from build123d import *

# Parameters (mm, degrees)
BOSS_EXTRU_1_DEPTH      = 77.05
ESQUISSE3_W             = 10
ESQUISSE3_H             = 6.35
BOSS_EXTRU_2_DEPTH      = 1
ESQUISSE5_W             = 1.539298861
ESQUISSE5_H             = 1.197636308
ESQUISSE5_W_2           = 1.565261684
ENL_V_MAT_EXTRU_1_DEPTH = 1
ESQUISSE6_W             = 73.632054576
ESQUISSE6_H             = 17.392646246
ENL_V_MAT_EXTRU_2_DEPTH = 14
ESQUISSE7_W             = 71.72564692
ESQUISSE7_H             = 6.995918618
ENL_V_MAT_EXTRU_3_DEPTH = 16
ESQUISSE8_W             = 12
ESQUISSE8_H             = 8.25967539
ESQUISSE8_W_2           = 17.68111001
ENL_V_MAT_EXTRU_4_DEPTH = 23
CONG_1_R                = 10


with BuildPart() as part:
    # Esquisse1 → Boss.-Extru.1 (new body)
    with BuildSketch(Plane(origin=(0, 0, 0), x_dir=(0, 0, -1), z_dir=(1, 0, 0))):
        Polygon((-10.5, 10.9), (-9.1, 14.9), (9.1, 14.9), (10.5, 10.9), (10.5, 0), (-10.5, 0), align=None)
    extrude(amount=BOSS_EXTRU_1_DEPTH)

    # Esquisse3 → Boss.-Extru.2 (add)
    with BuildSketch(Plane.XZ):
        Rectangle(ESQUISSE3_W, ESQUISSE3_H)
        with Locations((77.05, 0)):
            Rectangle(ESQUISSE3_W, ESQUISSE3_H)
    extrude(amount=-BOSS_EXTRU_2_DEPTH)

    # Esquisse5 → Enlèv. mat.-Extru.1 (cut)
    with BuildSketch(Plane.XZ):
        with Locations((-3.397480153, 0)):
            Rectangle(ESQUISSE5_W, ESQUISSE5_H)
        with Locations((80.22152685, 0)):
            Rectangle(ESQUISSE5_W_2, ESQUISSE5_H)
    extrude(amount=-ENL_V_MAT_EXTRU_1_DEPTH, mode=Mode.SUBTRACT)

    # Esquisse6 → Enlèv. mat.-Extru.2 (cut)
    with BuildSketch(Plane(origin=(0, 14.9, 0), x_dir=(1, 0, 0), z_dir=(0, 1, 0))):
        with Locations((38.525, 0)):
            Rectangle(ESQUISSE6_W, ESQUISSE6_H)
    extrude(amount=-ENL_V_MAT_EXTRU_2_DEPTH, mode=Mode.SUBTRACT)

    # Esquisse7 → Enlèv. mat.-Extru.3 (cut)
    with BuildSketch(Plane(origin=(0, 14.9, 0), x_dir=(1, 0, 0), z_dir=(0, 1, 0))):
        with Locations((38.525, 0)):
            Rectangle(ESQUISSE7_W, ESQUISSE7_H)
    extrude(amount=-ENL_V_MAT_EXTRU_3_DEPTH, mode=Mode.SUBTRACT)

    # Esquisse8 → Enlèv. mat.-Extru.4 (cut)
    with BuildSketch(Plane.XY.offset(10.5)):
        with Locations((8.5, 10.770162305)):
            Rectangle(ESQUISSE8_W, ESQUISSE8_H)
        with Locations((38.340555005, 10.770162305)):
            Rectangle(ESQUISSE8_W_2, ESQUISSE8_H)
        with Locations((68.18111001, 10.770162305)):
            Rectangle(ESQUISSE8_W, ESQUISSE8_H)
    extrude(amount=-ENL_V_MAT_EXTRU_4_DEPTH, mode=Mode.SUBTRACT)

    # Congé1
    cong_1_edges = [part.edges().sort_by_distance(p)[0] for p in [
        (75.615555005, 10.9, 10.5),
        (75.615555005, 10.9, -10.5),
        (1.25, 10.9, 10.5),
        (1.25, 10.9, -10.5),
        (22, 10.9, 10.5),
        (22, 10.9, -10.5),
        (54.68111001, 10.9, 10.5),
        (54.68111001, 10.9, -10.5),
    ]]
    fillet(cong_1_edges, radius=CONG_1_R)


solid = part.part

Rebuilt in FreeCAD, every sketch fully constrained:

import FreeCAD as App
import Part
import Sketcher
Q = App.Units.Quantity


def edges_at(feature, points):
    """Names of the edges that pass closest to the given points."""
    edges = feature.Shape.Edges
    near = lambda p: min(range(len(edges)), key=lambda i: edges[i].distToShape(Part.Vertex(*p))[0])
    return sorted({f"Edge{near(p) + 1}" for p in points})


def add_polygon(sketch, points):
    """Adds a closed chain of lines whose ends are joined by coincident constraints."""
    first, n = sketch.GeometryCount, len(points)
    for a, b in zip(points, points[1:] + points[:1]):
        sketch.addGeometry(Part.LineSegment(App.Vector(*a, 0), App.Vector(*b, 0)), False)
    for i in range(n):
        sketch.addConstraint(Sketcher.Constraint("Coincident", first + i, 2, first + (i + 1) % n, 1))

doc = App.newDocument("Part")
params = doc.addObject("Spreadsheet::Sheet", "Params")
for row, (alias, value) in enumerate([
    ("sketch1_height", "21 mm"),
    ("sketch1_width", "10.9 mm"),
    ("sketch1_height2", "18.2 mm"),
    ("pad1_length", "77.05 mm"),
    ("sketch2_width", "10 mm"),
    ("sketch2_height", "6.35 mm"),
    ("pad2_length", "1 mm"),
    ("pocket1_length", "1 mm"),
    ("pocket2_length", "14 mm"),
    ("pocket3_length", "16 mm"),
    ("sketch6_width", "12 mm"),
    ("pocket4_length", "23 mm"),
    ("fillet_radius", "10 mm"),
], start=1):
    params.set(f"A{row}", alias)
    params.set(f"B{row}", "=" + value)
    params.setAlias(f"B{row}", alias)

body = doc.addObject("PartDesign::Body", "Body")

sketch1 = body.newObject("Sketcher::SketchObject", "Sketch")
sketch1.AttachmentSupport = (doc.getObject("YZ_Plane"), [""])
sketch1.MapMode = "FlatFace"
add_polygon(sketch1, [(14.9, 9.1), (10.9, 10.5), (0, 10.5), (0, -10.5), (10.9, -10.5), (14.9, -9.1)])
sketch1.addConstraint([
    Sketcher.Constraint("Horizontal", 1),
    Sketcher.Constraint("Vertical", 2),
    Sketcher.Constraint("Horizontal", 3),
    Sketcher.Constraint("Vertical", 5),
    Sketcher.Constraint("Symmetric", 1, 2, 2, 2, -1, 1),
    Sketcher.Constraint("Vertical", 0, 2, 3, 2),
    Sketcher.Constraint("Equal", 0, 4),
    Sketcher.Constraint("DistanceY", 2, 2, 2, 1, Q("21 mm")),
    Sketcher.Constraint("DistanceX", 1, 2, 1, 1, Q("10.9 mm")),
    Sketcher.Constraint("DistanceY", 5, 1, 5, 2, Q("18.2 mm")),
    Sketcher.Constraint("DistanceX", 3, 2, 4, 2, Q("4 mm")),
])
sketch1.setExpression("Constraints[13]", "Params.sketch1_height")
sketch1.setExpression("Constraints[14]", "Params.sketch1_width")
sketch1.setExpression("Constraints[15]", "Params.sketch1_height2")
pad1 = body.newObject("PartDesign::Pad", "Pad")
pad1.Profile = sketch1
pad1.setExpression("Length", "Params.pad1_length")

sketch2 = body.newObject("Sketcher::SketchObject", "Sketch001")
sketch2.AttachmentSupport = (doc.getObject("XZ_Plane"), [""])
sketch2.MapMode = "FlatFace"
add_polygon(sketch2, [(-5, 3.175), (-5, -3.175), (5, -3.175), (5, 3.175)])
add_polygon(sketch2, [(72.05, 3.175), (72.05, -3.175), (82.05, -3.175), (82.05, 3.175)])
sketch2.addConstraint([
    Sketcher.Constraint("Vertical", 0),
    Sketcher.Constraint("Horizontal", 1),
    Sketcher.Constraint("Vertical", 2),
    Sketcher.Constraint("Horizontal", 3),
    Sketcher.Constraint("Vertical", 4),
    Sketcher.Constraint("Horizontal", 5),
    Sketcher.Constraint("Vertical", 6),
    Sketcher.Constraint("Horizontal", 7),
    Sketcher.Constraint("Symmetric", 0, 2, 2, 2, -1, 1),
    Sketcher.Constraint("Horizontal", 1, 2, 4, 2),
    Sketcher.Constraint("Horizontal", 3, 2, 6, 2),
    Sketcher.Constraint("Equal", 3, 5),
    Sketcher.Constraint("DistanceX", 1, 1, 1, 2, Q("10 mm")),
    Sketcher.Constraint("DistanceY", 0, 2, 0, 1, Q("6.35 mm")),
    Sketcher.Constraint("DistanceX", -1, 1, 4, 2, Q("72.05 mm")),
])
sketch2.setExpression("Constraints[20]", "Params.sketch2_width")
sketch2.setExpression("Constraints[21]", "Params.sketch2_height")
pad2 = body.newObject("PartDesign::Pad", "Pad001")
pad2.Profile = sketch2
pad2.setExpression("Length", "Params.pad2_length")
pad2.Reversed = True

sketch3 = body.newObject("Sketcher::SketchObject", "Sketch002")
sketch3.AttachmentSupport = (doc.getObject("XZ_Plane"), [""])
sketch3.MapMode = "FlatFace"
add_polygon(sketch3, [(-4.16713, 0.598818), (-4.16713, -0.598818), (-2.627831, -0.598818), (-2.627831, 0.598818)])
add_polygon(sketch3, [(79.438896, 0.598818), (79.438896, -0.598818), (81.004158, -0.598818), (81.004158, 0.598818)])
sketch3.addConstraint([
    Sketcher.Constraint("Vertical", 0),
    Sketcher.Constraint("Horizontal", 1),
    Sketcher.Constraint("Vertical", 2),
    Sketcher.Constraint("Horizontal", 3),
    Sketcher.Constraint("Vertical", 4),
    Sketcher.Constraint("Horizontal", 5),
    Sketcher.Constraint("Vertical", 6),
    Sketcher.Constraint("Horizontal", 7),
    Sketcher.Constraint("Horizontal", 1, 2, 4, 2),
    Sketcher.Constraint("Horizontal", 3, 2, 6, 2),
    Sketcher.Constraint("DistanceX", 1, 1, 1, 2, Q("1.539299 mm")),
    Sketcher.Constraint("DistanceX", 5, 1, 5, 2, Q("1.565262 mm")),
    Sketcher.Constraint("DistanceY", 0, 2, 0, 1, Q("1.197636 mm")),
    Sketcher.Constraint("DistanceX", 0, 2, -1, 1, Q("4.16713 mm")),
    Sketcher.Constraint("DistanceY", 0, 2, -1, 1, Q("0.598818 mm")),
    Sketcher.Constraint("DistanceX", 1, 2, 5, 2, Q("83.631988 mm")),
])
pocket1 = body.newObject("PartDesign::Pocket", "Pocket")
pocket1.Profile = sketch3
pocket1.setExpression("Length", "Params.pocket1_length")

sketch4 = body.newObject("Sketcher::SketchObject", "Sketch003")
sketch4.AttachmentSupport = (doc.getObject("XZ_Plane"), [""])
sketch4.MapMode = "FlatFace"
sketch4.AttachmentOffset = App.Placement(App.Vector(0, 0, -14.9), App.Rotation())
add_polygon(sketch4, [(1.708973, -8.696323), (1.708973, 8.696323), (75.341027, 8.696323), (75.341027, -8.696323)])
sketch4.addConstraint([
    Sketcher.Constraint("Vertical", 0),
    Sketcher.Constraint("Horizontal", 1),
    Sketcher.Constraint("Vertical", 2),
    Sketcher.Constraint("Horizontal", 3),
    Sketcher.Constraint("DistanceX", 1, 1, 1, 2, Q("73.632055 mm")),
    Sketcher.Constraint("DistanceY", 0, 1, 0, 2, Q("17.392646 mm")),
    Sketcher.Constraint("DistanceX", -1, 1, 0, 2, Q("1.708973 mm")),
    Sketcher.Constraint("DistanceY", -1, 1, 0, 2, Q("8.696323 mm")),
])
pocket2 = body.newObject("PartDesign::Pocket", "Pocket001")
pocket2.Profile = sketch4
pocket2.setExpression("Length", "Params.pocket2_length")
pocket2.Reversed = True

sketch5 = body.newObject("Sketcher::SketchObject", "Sketch004")
sketch5.AttachmentSupport = (doc.getObject("XZ_Plane"), [""])
sketch5.MapMode = "FlatFace"
sketch5.AttachmentOffset = App.Placement(App.Vector(0, 0, -14.9), App.Rotation())
add_polygon(sketch5, [(2.662177, -3.497959), (2.662177, 3.497959), (74.387823, 3.497959), (74.387823, -3.497959)])
sketch5.addConstraint([
    Sketcher.Constraint("Vertical", 0),
    Sketcher.Constraint("Horizontal", 1),
    Sketcher.Constraint("Vertical", 2),
    Sketcher.Constraint("Horizontal", 3),
    Sketcher.Constraint("DistanceY", 0, 1, 0, 2, Q("6.995919 mm")),
    Sketcher.Constraint("DistanceX", 1, 1, 1, 2, Q("71.725647 mm")),
    Sketcher.Constraint("DistanceY", -1, 1, 0, 2, Q("3.497959 mm")),
    Sketcher.Constraint("DistanceX", -1, 1, 0, 2, Q("2.662177 mm")),
])
pocket3 = body.newObject("PartDesign::Pocket", "Pocket002")
pocket3.Profile = sketch5
pocket3.setExpression("Length", "Params.pocket3_length")
pocket3.Reversed = True

sketch6 = body.newObject("Sketcher::SketchObject", "Sketch005")
sketch6.AttachmentSupport = (doc.getObject("XY_Plane"), [""])
sketch6.MapMode = "FlatFace"
sketch6.AttachmentOffset = App.Placement(App.Vector(0, 0, 10.5), App.Rotation())
add_polygon(sketch6, [(2.5, 14.9), (2.5, 6.640325), (14.5, 6.640325), (14.5, 14.9)])
add_polygon(sketch6, [(29.5, 14.9), (29.5, 6.640325), (47.18111, 6.640325), (47.18111, 14.9)])
add_polygon(sketch6, [(62.18111, 14.9), (62.18111, 6.640325), (74.18111, 6.640325), (74.18111, 14.9)])
sketch6.addConstraint([
    Sketcher.Constraint("Vertical", 0),
    Sketcher.Constraint("Horizontal", 1),
    Sketcher.Constraint("Vertical", 2),
    Sketcher.Constraint("Horizontal", 3),
    Sketcher.Constraint("Vertical", 4),
    Sketcher.Constraint("Horizontal", 5),
    Sketcher.Constraint("Vertical", 6),
    Sketcher.Constraint("Horizontal", 7),
    Sketcher.Constraint("Vertical", 8),
    Sketcher.Constraint("Horizontal", 9),
    Sketcher.Constraint("Vertical", 10),
    Sketcher.Constraint("Horizontal", 11),
    Sketcher.Constraint("Horizontal", 1, 2, 4, 2),
    Sketcher.Constraint("Horizontal", 3, 2, 6, 2),
    Sketcher.Constraint("Horizontal", 5, 2, 8, 2),
    Sketcher.Constraint("Horizontal", 7, 2, 10, 2),
    Sketcher.Constraint("Equal", 3, 9),
    Sketcher.Constraint("DistanceX", 1, 1, 1, 2, Q("12 mm")),
    Sketcher.Constraint("DistanceX", 1, 2, 4, 2, Q("15 mm")),
    Sketcher.Constraint("DistanceX", 5, 2, 8, 2, Q("15 mm")),
    Sketcher.Constraint("DistanceX", -1, 1, 0, 2, Q("2.5 mm")),
    Sketcher.Constraint("DistanceY", -1, 1, 2, 2, Q("14.9 mm")),
    Sketcher.Constraint("DistanceX", 5, 1, 5, 2, Q("17.68111 mm")),
    Sketcher.Constraint("DistanceY", 0, 2, 0, 1, Q("8.259675 mm")),
])
sketch6.setExpression("Constraints[29]", "Params.sketch6_width")
pocket4 = body.newObject("PartDesign::Pocket", "Pocket003")
pocket4.Profile = sketch6
pocket4.setExpression("Length", "Params.pocket4_length")
doc.recompute()

fillet = body.newObject("PartDesign::Fillet", "Fillet")
fillet.Base = (pocket4, edges_at(pocket4, [
    (75.616, 10.9, 10.5),
    (75.616, 10.9, -10.5),
    (1.25, 10.9, 10.5),
    (1.25, 10.9, -10.5),
    (22, 10.9, 10.5),
    (22, 10.9, -10.5),
    (54.681, 10.9, 10.5),
    (54.681, 10.9, -10.5),
]))
fillet.setExpression("Radius", "Params.fillet_radius")

doc.recompute()
